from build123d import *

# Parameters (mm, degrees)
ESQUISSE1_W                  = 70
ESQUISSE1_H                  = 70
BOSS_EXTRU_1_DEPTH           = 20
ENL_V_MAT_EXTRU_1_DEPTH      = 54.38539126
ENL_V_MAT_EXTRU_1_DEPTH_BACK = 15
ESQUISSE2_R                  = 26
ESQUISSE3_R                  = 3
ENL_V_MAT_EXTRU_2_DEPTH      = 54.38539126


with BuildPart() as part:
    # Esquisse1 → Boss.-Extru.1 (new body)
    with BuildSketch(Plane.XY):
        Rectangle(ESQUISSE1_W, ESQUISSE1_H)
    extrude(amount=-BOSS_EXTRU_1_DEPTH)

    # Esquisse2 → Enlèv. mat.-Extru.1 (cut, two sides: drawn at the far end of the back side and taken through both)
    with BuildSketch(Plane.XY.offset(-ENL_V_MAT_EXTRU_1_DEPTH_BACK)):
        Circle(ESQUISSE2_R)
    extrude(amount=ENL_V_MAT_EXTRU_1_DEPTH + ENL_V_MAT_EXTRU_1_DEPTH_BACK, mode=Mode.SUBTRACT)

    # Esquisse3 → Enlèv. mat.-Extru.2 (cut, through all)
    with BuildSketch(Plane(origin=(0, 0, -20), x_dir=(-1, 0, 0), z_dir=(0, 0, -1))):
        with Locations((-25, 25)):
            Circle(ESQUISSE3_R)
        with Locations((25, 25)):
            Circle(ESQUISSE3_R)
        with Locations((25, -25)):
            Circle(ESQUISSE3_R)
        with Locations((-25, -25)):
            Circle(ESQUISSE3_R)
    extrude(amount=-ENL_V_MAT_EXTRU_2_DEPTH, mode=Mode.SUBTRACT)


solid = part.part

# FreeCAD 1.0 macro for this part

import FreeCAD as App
import Part
import Sketcher

V = App.Vector


def add_polygon(sketch, points):
    """Adds a closed chain of lines whose ends are joined by coincident constraints."""
    first, n = sketch.GeometryCount, len(points)
    for a, b in zip(points, points[1:] + points[:1]):
        sketch.addGeometry(Part.LineSegment(App.Vector(*a, 0), App.Vector(*b, 0)), False)
    for i in range(n):
        sketch.addConstraint(Sketcher.Constraint("Coincident", first + i, 2, first + (i + 1) % n, 1))

doc = App.newDocument("Part")
params = doc.addObject("Spreadsheet::Sheet", "Params")
for row, (alias, value) in enumerate([
    ("sketch1_width", "70 mm"),
    ("pad1_length", "20 mm"),
    ("sketch2_diameter", "52 mm"),
    ("pocket1_length", "54.385391 mm"),
    ("pocket1_length2", "15 mm"),
    ("sketch3_diameter", "6 mm"),
], start=1):
    params.set(f"A{row}", alias)
    params.set(f"B{row}", "=" + value)
    params.setAlias(f"B{row}", alias)

body = doc.addObject("PartDesign::Body", "Body")

sketch1 = body.newObject("Sketcher::SketchObject", "Sketch")
sketch1.AttachmentSupport = (doc.getObject("XY_Plane"), [""])
sketch1.MapMode = "FlatFace"
add_polygon(sketch1, [(-35, 35), (-35, -35), (35, -35), (35, 35)])
sketch1.addConstraint([
    Sketcher.Constraint("Vertical", 0),
    Sketcher.Constraint("Horizontal", 1),
    Sketcher.Constraint("Vertical", 2),
    Sketcher.Constraint("Horizontal", 3),
    Sketcher.Constraint("Symmetric", 0, 2, 2, 2, -1, 1),
    Sketcher.Constraint("Equal", 3, 0),
    Sketcher.Constraint("DistanceX", 1, 1, 1, 2, 70.0),
])
sketch1.setExpression("Constraints[10]", "Params.sketch1_width")
pad1 = body.newObject("PartDesign::Pad", "Pad")
pad1.Profile = sketch1
pad1.setExpression("Length", "Params.pad1_length")
pad1.Reversed = True

sketch2 = body.newObject("Sketcher::SketchObject", "Sketch001")
sketch2.AttachmentSupport = (doc.getObject("XY_Plane"), [""])
sketch2.MapMode = "FlatFace"
sketch2.addGeometry(Part.Circle(V(0, 0, 0), V(0, 0, 1), 26), False)
sketch2.addConstraint([
    Sketcher.Constraint("Coincident", 0, 3, -1, 1),
    Sketcher.Constraint("Diameter", 0, 52.0),
])
sketch2.setExpression("Constraints[1]", "Params.sketch2_diameter")
pocket1 = body.newObject("PartDesign::Pocket", "Pocket")
pocket1.Profile = sketch2
pocket1.Type = "TwoLengths"
pocket1.setExpression("Length", "Params.pocket1_length")
pocket1.setExpression("Length2", "Params.pocket1_length2")
pocket1.Reversed = True

sketch3 = body.newObject("Sketcher::SketchObject", "Sketch002")
sketch3.AttachmentSupport = (doc.getObject("XY_Plane"), [""])
sketch3.MapMode = "FlatFace"
sketch3.AttachmentOffset = App.Placement(V(0, 0, -20), App.Rotation())
sketch3.addGeometry([
    Part.Circle(V(25, 25, 0), V(0, 0, 1), 3),
    Part.Circle(V(-25, 25, 0), V(0, 0, 1), 3),
    Part.Circle(V(-25, -25, 0), V(0, 0, 1), 3),
    Part.Circle(V(25, -25, 0), V(0, 0, 1), 3),
], False)
sketch3.addConstraint([
    Sketcher.Constraint("Equal", 0, 1),
    Sketcher.Constraint("Equal", 1, 2),
    Sketcher.Constraint("Equal", 2, 3),
    Sketcher.Constraint("Symmetric", 0, 3, 2, 3, -1, 1),
    Sketcher.Constraint("Symmetric", 1, 3, 3, 3, -1, 1),
    Sketcher.Constraint("Symmetric", 0, 3, 1, 3, -2),
    Sketcher.Constraint("Diameter", 0, 6.0),
    Sketcher.Constraint("DistanceX", -1, 1, 0, 3, 25.0),
    Sketcher.Constraint("DistanceY", -1, 1, 0, 3, 25.0),
])
sketch3.setExpression("Constraints[6]", "Params.sketch3_diameter")
pocket2 = body.newObject("PartDesign::Pocket", "Pocket001")
pocket2.Profile = sketch3
pocket2.Type = "ThroughAll"
pocket2.Reversed = True

doc.recompute()
